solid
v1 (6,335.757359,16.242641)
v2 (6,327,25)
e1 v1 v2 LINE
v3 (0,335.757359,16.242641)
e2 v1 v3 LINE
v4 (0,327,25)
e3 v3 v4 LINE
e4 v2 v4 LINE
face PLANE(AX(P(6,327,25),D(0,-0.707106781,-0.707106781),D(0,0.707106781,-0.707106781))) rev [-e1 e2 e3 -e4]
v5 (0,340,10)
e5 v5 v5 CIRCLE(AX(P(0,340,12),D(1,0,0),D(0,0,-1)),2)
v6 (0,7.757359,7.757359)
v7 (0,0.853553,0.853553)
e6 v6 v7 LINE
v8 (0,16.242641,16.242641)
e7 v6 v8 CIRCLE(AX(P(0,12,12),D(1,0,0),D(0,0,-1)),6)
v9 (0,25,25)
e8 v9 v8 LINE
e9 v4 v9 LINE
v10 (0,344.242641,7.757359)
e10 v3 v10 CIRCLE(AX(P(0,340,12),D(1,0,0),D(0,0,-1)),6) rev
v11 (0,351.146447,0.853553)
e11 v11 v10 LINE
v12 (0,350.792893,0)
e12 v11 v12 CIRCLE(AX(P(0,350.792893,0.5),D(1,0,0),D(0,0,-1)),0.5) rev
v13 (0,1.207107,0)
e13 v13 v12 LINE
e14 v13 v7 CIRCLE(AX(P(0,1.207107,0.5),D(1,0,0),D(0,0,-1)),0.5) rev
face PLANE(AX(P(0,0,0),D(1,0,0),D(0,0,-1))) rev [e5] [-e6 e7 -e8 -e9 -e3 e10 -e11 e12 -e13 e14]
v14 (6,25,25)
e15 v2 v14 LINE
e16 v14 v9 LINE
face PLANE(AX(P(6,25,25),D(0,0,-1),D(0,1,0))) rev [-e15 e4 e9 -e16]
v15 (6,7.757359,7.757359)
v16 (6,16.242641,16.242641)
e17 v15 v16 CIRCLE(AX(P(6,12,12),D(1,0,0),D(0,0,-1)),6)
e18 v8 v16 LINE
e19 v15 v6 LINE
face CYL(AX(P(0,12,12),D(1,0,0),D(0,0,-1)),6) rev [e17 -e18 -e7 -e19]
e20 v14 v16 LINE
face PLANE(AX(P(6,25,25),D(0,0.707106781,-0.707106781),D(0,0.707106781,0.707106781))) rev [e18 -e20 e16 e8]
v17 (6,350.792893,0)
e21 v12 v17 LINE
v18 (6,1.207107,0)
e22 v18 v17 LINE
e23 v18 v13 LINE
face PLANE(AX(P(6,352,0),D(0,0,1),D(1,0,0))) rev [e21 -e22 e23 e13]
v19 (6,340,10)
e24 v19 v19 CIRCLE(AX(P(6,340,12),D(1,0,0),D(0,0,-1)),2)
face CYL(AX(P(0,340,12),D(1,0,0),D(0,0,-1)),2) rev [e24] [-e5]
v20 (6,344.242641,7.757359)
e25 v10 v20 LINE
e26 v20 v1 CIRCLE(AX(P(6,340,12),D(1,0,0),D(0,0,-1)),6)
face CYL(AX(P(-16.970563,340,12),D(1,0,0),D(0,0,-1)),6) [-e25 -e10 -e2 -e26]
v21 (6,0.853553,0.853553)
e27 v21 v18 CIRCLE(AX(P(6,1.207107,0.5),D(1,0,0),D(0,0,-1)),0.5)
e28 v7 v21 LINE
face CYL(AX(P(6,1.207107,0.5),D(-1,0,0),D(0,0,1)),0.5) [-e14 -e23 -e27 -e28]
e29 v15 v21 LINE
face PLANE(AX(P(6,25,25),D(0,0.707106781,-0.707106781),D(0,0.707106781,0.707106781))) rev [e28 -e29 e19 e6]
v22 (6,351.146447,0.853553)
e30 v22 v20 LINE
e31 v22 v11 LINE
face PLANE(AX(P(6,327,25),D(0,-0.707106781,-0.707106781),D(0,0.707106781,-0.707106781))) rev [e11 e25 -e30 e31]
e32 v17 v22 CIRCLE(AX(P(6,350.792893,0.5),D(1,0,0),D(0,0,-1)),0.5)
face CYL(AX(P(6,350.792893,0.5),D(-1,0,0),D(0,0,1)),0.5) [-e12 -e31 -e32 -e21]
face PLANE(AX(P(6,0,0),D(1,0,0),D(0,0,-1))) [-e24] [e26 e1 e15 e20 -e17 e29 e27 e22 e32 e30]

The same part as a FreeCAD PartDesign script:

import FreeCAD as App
import Part
import Sketcher
from FreeCAD import Vector


def edges_at(feature, points):
    """Names of the edges that pass closest to the given points."""
    edges = feature.Shape.Edges
    near = lambda p: min(range(len(edges)), key=lambda i: edges[i].distToShape(Part.Vertex(*p))[0])
    return sorted({f"Edge{near(p) + 1}" for p in points})


def add_polygon(sketch, points):
    """Adds a closed chain of lines whose ends are joined by coincident constraints."""
    first, n = sketch.GeometryCount, len(points)
    for a, b in zip(points, points[1:] + points[:1]):
        sketch.addGeometry(Part.LineSegment(App.Vector(*a, 0), App.Vector(*b, 0)), False)
    for i in range(n):
        sketch.addConstraint(Sketcher.Constraint("Coincident", first + i, 2, first + (i + 1) % n, 1))

doc = App.newDocument("Part")
body = doc.addObject("PartDesign::Body", "Body")

# Sketch on YZ plane
sketch1 = body.newObject("Sketcher::SketchObject", "Sketch")
sketch1.AttachmentSupport = (doc.getObject("YZ_Plane"), [""])
sketch1.MapMode = "FlatFace"
add_polygon(sketch1, [(0, 0), (352, 0), (327, 25), (25, 25)])  # lines 0-3
sketch1.addConstraint([
    Sketcher.Constraint("Horizontal", 0),
    Sketcher.Constraint("Horizontal", 2),
    Sketcher.Constraint("Coincident", 3, 2, -1, 1),
    Sketcher.Constraint("Perpendicular", 1, 3),
    Sketcher.Constraint("Equal", 1, 3),
    Sketcher.Constraint("DistanceX", 0, 1, 0, 2, 352.0),
    Sketcher.Constraint("DistanceX", 2, 2, 2, 1, 302.0),
])
pad1 = body.newObject("PartDesign::Pad", "Pad")
pad1.Profile = sketch1
pad1.Length = 6
doc.recompute()

fillet = body.newObject("PartDesign::Fillet", "Fillet")
fillet.Base = (pad1, edges_at(pad1, [(3, 352, 0), (3, 0, 0)]))
fillet.Radius = 0.5

# Sketch on YZ plane
sketch2 = body.newObject("Sketcher::SketchObject", "Sketch001")
sketch2.AttachmentSupport = (doc.getObject("YZ_Plane"), [""])
sketch2.MapMode = "FlatFace"
sketch2.AttachmentOffset = App.Placement(Vector(0, 0, 6), App.Rotation())
sketch2.addGeometry(Part.Circle(Vector(340, 12, 0), Vector(0, 0, 1), 6), False)
sketch2.addConstraint([
    Sketcher.Constraint("Diameter", 0, 12.0),
    Sketcher.Constraint("DistanceX", -1, 1, 0, 3, 340.0),
    Sketcher.Constraint("DistanceY", -1, 1, 0, 3, 12.0),
])
pad2 = body.newObject("PartDesign::Pad", "Pad001")
pad2.Profile = sketch2
pad2.Length = 6
pad2.Reversed = True

# Sketch on YZ plane
sketch3 = body.newObject("Sketcher::SketchObject", "Sketch002")
sketch3.AttachmentSupport = (doc.getObject("YZ_Plane"), [""])
sketch3.MapMode = "FlatFace"
sketch3.AttachmentOffset = App.Placement(Vector(0, 0, 6), App.Rotation())
sketch3.addGeometry([
    Part.Circle(Vector(340, 12, 0), Vector(0, 0, 1), 2),
    Part.Circle(Vector(12, 12, 0), Vector(0, 0, 1), 6),
], False)
sketch3.addConstraint([
    Sketcher.Constraint("Horizontal", 0, 3, 1, 3),
    Sketcher.Constraint("Diameter", 0, 4.0),
    Sketcher.Constraint("Diameter", 1, 12.0),
    Sketcher.Constraint("DistanceX", -1, 1, 0, 3, 340.0),
    Sketcher.Constraint("DistanceY", -1, 1, 0, 3, 12.0),
    Sketcher.Constraint("DistanceX", -1, 1, 1, 3, 12.0),
])
pocket1 = body.newObject("PartDesign::Pocket", "Pocket")
pocket1.Profile = sketch3
pocket1.Type = "ThroughAll"

doc.recompute()
